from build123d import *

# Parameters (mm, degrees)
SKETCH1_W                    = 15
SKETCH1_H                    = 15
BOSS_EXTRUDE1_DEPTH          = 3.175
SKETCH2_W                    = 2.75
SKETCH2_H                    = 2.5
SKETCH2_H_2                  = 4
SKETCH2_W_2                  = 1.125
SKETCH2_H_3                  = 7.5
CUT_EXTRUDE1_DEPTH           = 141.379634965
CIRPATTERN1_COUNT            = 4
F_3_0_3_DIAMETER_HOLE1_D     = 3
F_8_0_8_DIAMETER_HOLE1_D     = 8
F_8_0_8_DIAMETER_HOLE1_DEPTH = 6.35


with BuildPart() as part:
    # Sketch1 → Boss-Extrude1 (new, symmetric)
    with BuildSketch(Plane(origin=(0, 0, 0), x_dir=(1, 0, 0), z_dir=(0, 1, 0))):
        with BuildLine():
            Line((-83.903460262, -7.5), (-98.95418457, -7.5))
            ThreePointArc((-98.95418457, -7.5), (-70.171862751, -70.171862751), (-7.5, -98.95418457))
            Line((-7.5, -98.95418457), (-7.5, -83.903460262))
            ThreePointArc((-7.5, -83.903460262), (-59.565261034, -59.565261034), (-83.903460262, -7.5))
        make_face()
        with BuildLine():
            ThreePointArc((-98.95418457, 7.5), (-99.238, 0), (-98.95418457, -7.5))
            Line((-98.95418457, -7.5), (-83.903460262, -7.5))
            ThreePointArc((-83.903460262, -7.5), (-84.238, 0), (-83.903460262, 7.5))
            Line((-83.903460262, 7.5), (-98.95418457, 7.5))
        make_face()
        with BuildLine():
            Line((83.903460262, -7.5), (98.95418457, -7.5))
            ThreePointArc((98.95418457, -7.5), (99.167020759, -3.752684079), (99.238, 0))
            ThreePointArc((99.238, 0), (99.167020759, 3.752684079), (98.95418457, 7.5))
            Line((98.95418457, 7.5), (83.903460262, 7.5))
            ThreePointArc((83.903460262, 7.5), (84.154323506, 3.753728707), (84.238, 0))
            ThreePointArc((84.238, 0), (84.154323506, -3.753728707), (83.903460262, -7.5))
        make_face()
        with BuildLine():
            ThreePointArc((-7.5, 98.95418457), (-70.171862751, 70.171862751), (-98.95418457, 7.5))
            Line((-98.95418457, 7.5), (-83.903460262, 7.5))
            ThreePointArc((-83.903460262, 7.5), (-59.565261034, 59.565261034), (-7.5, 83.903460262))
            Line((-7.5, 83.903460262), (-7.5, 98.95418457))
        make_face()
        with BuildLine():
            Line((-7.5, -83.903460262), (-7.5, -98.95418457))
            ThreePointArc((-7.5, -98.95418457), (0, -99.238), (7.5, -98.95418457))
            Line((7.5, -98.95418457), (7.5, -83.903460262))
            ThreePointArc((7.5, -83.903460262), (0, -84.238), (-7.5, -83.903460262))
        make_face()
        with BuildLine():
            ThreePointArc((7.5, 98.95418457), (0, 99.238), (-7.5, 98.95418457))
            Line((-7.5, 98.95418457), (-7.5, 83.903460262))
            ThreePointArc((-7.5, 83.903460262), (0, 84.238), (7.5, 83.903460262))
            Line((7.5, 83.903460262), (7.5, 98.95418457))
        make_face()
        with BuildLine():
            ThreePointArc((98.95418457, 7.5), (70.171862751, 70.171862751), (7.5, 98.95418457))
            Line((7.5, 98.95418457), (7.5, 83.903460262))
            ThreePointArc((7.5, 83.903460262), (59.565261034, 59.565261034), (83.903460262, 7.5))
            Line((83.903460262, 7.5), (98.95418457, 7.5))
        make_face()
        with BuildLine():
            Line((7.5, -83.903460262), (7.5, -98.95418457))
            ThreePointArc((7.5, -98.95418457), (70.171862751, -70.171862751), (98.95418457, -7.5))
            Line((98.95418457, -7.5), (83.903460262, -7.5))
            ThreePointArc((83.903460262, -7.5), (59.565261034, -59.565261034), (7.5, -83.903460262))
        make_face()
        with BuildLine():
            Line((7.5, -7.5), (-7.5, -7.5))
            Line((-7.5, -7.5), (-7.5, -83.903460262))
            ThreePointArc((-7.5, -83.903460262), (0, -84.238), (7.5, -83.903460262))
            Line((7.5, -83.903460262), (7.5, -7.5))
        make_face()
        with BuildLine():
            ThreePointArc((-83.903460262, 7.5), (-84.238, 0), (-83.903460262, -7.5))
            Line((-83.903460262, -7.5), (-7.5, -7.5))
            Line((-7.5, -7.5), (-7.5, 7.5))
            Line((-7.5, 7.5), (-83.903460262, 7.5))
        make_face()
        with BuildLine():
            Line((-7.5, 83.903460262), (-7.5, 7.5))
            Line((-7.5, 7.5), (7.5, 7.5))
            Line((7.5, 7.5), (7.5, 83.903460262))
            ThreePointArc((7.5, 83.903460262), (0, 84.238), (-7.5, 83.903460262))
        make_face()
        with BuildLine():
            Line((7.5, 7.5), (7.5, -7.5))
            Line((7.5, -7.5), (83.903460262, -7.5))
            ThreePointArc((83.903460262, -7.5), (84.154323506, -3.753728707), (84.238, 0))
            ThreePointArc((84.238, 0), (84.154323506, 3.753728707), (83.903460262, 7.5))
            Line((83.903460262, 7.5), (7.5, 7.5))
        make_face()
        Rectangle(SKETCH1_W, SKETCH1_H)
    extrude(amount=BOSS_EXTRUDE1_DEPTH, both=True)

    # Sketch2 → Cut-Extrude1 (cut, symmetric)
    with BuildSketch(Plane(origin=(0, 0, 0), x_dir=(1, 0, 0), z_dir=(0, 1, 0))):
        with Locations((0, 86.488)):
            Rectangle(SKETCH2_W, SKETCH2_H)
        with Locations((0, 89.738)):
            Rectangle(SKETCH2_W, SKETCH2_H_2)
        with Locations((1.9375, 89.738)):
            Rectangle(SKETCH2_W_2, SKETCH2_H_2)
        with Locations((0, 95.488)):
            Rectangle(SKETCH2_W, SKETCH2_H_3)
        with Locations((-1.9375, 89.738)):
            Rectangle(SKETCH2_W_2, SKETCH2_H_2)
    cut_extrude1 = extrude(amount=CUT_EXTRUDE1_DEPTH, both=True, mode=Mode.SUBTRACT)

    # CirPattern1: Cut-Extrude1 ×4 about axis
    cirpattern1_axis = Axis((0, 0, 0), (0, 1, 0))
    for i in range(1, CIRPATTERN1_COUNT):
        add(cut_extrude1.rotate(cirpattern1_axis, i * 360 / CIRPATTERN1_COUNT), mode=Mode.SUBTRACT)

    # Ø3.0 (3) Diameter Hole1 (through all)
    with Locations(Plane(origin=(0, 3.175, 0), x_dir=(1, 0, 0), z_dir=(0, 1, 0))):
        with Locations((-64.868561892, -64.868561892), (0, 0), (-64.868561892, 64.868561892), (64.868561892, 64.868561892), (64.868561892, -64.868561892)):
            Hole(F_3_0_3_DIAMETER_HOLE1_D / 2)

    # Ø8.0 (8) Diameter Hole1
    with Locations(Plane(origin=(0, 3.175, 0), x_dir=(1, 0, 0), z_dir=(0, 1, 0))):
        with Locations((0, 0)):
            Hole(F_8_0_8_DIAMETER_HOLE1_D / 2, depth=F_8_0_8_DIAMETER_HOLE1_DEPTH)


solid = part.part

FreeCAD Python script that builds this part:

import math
import FreeCAD as App
import Part
import Sketcher
from FreeCAD import Vector
Q = App.Units.Quantity

doc = App.newDocument("Part")
params = doc.addObject("Spreadsheet::Sheet", "Params")
for row, (alias, value) in enumerate([
    ("pad1_length", "6.35 mm"),
    ("sketch2_height", "4 mm"),
    ("sketch2_height2", "2.5 mm"),
    ("sketch2_height3", "7.5 mm"),
    ("sketch2_width", "2.75 mm"),
    ("pocket1_length", "282.75927 mm"),
    ("sketch3_diameter", "3 mm"),
    ("hole_diameter", "3 mm"),
    ("sketch4_diameter", "8 mm"),
    ("hole2_diameter", "8 mm"),
    ("hole2_depth", "6.35 mm"),
], start=1):
    params.set(f"A{row}", alias)
    params.set(f"B{row}", "=" + value)
    params.setAlias(f"B{row}", alias)

body = doc.addObject("PartDesign::Body", "Body")

# Sketch on XZ plane
sketch1 = body.newObject("Sketcher::SketchObject", "Sketch")
sketch1.AttachmentSupport = (doc.getObject("XZ_Plane"), [""])
sketch1.MapMode = "FlatFace"
sketch1.addGeometry([
    Part.ArcOfCircle(Part.Circle(Vector(0, 0, 0), Vector(0, 0, 1), 99), math.radians(94), math.radians(176)),  # 0
    Part.ArcOfCircle(Part.Circle(Vector(0, 0, 0), Vector(0, 0, 1), 99), math.radians(85.67), math.radians(94.33)),  # 1
    Part.ArcOfCircle(Part.Circle(Vector(0, 0, 0), Vector(0, 0, 1), 99), math.radians(4), math.radians(86)),  # 2
    Part.ArcOfCircle(Part.Circle(Vector(0, 0, 0), Vector(0, 0, 1), 99), math.radians(0), math.radians(4.33)),  # 3
    Part.ArcOfCircle(Part.Circle(Vector(0, 0, 0), Vector(0, 0, 1), 99), math.radians(-4.33), math.radians(0)),  # 4
    Part.ArcOfCircle(Part.Circle(Vector(0, 0, 0), Vector(0, 0, 1), 99), math.radians(-86), math.radians(-4)),  # 5
    Part.ArcOfCircle(Part.Circle(Vector(0, 0, 0), Vector(0, 0, 1), 99), math.radians(-94.33), math.radians(-85.67)),  # 6
    Part.ArcOfCircle(Part.Circle(Vector(0, 0, 0), Vector(0, 0, 1), 99), math.radians(-176), math.radians(-94)),  # 7
    Part.ArcOfCircle(Part.Circle(Vector(0, 0, 0), Vector(0, 0, 1), 99), math.radians(175.67), math.radians(184.33)),  # 8
    Part.LineSegment(Vector(-84, 8, 0), Vector(-8, 8, 0)),  # 9
    Part.LineSegment(Vector(-8, 8, 0), Vector(-8, 84, 0)),  # 10
    Part.ArcOfCircle(Part.Circle(Vector(0, 0, 0), Vector(0, 0, 1), 84), math.radians(95), math.radians(175)),  # 11
    Part.LineSegment(Vector(8, 84, 0), Vector(8, 8, 0)),  # 12
    Part.LineSegment(Vector(8, 8, 0), Vector(84, 8, 0)),  # 13
    Part.ArcOfCircle(Part.Circle(Vector(0, 0, 0), Vector(0, 0, 1), 84), math.radians(5), math.radians(85)),  # 14
    Part.LineSegment(Vector(-8, -84, 0), Vector(-8, -8, 0)),  # 15
    Part.LineSegment(Vector(-8, -8, 0), Vector(-84, -8, 0)),  # 16
    Part.ArcOfCircle(Part.Circle(Vector(0, 0, 0), Vector(0, 0, 1), 84), math.radians(-175), math.radians(-95)),  # 17
    Part.LineSegment(Vector(84, -8, 0), Vector(8, -8, 0)),  # 18
    Part.LineSegment(Vector(8, -8, 0), Vector(8, -84, 0)),  # 19
    Part.ArcOfCircle(Part.Circle(Vector(0, 0, 0), Vector(0, 0, 1), 84), math.radians(-85), math.radians(-5)),  # 20
], False)
sketch1.addConstraint([
    Sketcher.Constraint("Tangent", 0, 1, 1, 2),
    Sketcher.Constraint("Tangent", 1, 1, 2, 2),
    Sketcher.Constraint("Tangent", 2, 1, 3, 2),
    Sketcher.Constraint("Tangent", 3, 1, 4, 2),
    Sketcher.Constraint("Tangent", 4, 1, 5, 2),
    Sketcher.Constraint("Tangent", 5, 1, 6, 2),
    Sketcher.Constraint("Tangent", 6, 1, 7, 2),
    Sketcher.Constraint("Tangent", 7, 1, 8, 2),
    Sketcher.Constraint("Tangent", 8, 1, 0, 2),
    Sketcher.Constraint("Coincident", 9, 2, 10, 1),
    Sketcher.Constraint("Coincident", 10, 2, 11, 1),
    Sketcher.Constraint("Coincident", 11, 2, 9, 1),
    Sketcher.Constraint("Coincident", 12, 2, 13, 1),
    Sketcher.Constraint("Coincident", 13, 2, 14, 1),
    Sketcher.Constraint("Coincident", 14, 2, 12, 1),
    Sketcher.Constraint("Coincident", 15, 2, 16, 1),
    Sketcher.Constraint("Coincident", 16, 2, 17, 1),
    Sketcher.Constraint("Coincident", 17, 2, 15, 1),
    Sketcher.Constraint("Coincident", 18, 2, 19, 1),
    Sketcher.Constraint("Coincident", 19, 2, 20, 1),
    Sketcher.Constraint("Coincident", 20, 2, 18, 1),
    Sketcher.Constraint("Horizontal", 9),
    Sketcher.Constraint("Vertical", 10),
    Sketcher.Constraint("Vertical", 12),
    Sketcher.Constraint("Horizontal", 13),
    Sketcher.Constraint("Vertical", 15),
    Sketcher.Constraint("Horizontal", 16),
    Sketcher.Constraint("Horizontal", 18),
    Sketcher.Constraint("Vertical", 19),
    Sketcher.Constraint("Coincident", 0, 3, -1, 1),
    Sketcher.Constraint("Coincident", 2, 3, -1, 1),
    Sketcher.Constraint("Coincident", 4, 3, -1, 1),
    Sketcher.Constraint("Coincident", 6, 3, -1, 1),
    Sketcher.Constraint("Coincident", 11, 3, -1, 1),
    Sketcher.Constraint("Coincident", 14, 3, -1, 1),
    Sketcher.Constraint("Coincident", 17, 3, -1, 1),
    Sketcher.Constraint("Coincident", 20, 3, -1, 1),
    Sketcher.Constraint("Equal", 11, 14),
    Sketcher.Constraint("Equal", 14, 17),
    Sketcher.Constraint("Equal", 17, 20),
    Sketcher.Constraint("Symmetric", 12, 2, 15, 2, -1, 1),
    Sketcher.Constraint("Symmetric", 9, 2, 18, 2, -1, 1),
    Sketcher.Constraint("Symmetric", 9, 2, 12, 2, -2),
    Sketcher.Constraint("PointOnObject", 3, 1, -1),
    Sketcher.Constraint("Horizontal", 0, 1, 1, 1),
    Sketcher.Constraint("Horizontal", 5, 1, 6, 1),
    Sketcher.Constraint("Horizontal", 4, 1, 7, 1),
    Sketcher.Constraint("Horizontal", 2, 1, 8, 1),
    Sketcher.Constraint("Horizontal", 8, 1, 9, 2),
    Sketcher.Constraint("Horizontal", 7, 1, 15, 2),
    Sketcher.Constraint("Vertical", 1, 1, 5, 1),
    Sketcher.Constraint("Vertical", 6, 1, 9, 2),
    Sketcher.Constraint("Equal", 18, 10),
    Sketcher.Constraint("Radius", 0, Q("99.238 mm")),
    Sketcher.Constraint("Radius", 11, Q("84.238 mm")),
    Sketcher.Constraint("DistanceX", 0, 1, 1, 1, Q("15 mm")),
])
pad1 = body.newObject("PartDesign::Pad", "Pad")
pad1.Profile = sketch1
pad1.setExpression("Length", "Params.pad1_length")
pad1.Midplane = True

# Sketch on XZ plane
sketch2 = body.newObject("Sketcher::SketchObject", "Sketch001")
sketch2.AttachmentSupport = (doc.getObject("XZ_Plane"), [""])
sketch2.MapMode = "FlatFace"
sketch2.addGeometry([
    Part.LineSegment(Vector(-1.4, -85.2, 0), Vector(1.4, -85.2, 0)),  # 0
    Part.LineSegment(Vector(1.4, -85.2, 0), Vector(1.4, -87.7, 0)),  # 1
    Part.LineSegment(Vector(1.4, -87.7, 0), Vector(2.5, -87.7, 0)),  # 2
    Part.LineSegment(Vector(2.5, -87.7, 0), Vector(2.5, -91.7, 0)),  # 3
    Part.LineSegment(Vector(2.5, -91.7, 0), Vector(1.4, -91.7, 0)),  # 4
    Part.LineSegment(Vector(1.4, -91.7, 0), Vector(1.4, -99.2, 0)),  # 5
    Part.LineSegment(Vector(1.4, -99.2, 0), Vector(-1.4, -99.2, 0)),  # 6
    Part.LineSegment(Vector(-1.4, -99.2, 0), Vector(-1.4, -91.7, 0)),  # 7
    Part.LineSegment(Vector(-1.4, -91.7, 0), Vector(-2.5, -91.7, 0)),  # 8
    Part.LineSegment(Vector(-2.5, -91.7, 0), Vector(-2.5, -87.7, 0)),  # 9
    Part.LineSegment(Vector(-2.5, -87.7, 0), Vector(-1.4, -87.7, 0)),  # 10
    Part.LineSegment(Vector(-1.4, -87.7, 0), Vector(-1.4, -85.2, 0)),  # 11
], False)
sketch2.addConstraint([
    Sketcher.Constraint("Coincident", 0, 2, 1, 1),
    Sketcher.Constraint("Coincident", 1, 2, 2, 1),
    Sketcher.Constraint("Coincident", 2, 2, 3, 1),
    Sketcher.Constraint("Coincident", 3, 2, 4, 1),
    Sketcher.Constraint("Coincident", 4, 2, 5, 1),
    Sketcher.Constraint("Coincident", 5, 2, 6, 1),
    Sketcher.Constraint("Coincident", 6, 2, 7, 1),
    Sketcher.Constraint("Coincident", 7, 2, 8, 1),
    Sketcher.Constraint("Coincident", 8, 2, 9, 1),
    Sketcher.Constraint("Coincident", 9, 2, 10, 1),
    Sketcher.Constraint("Coincident", 10, 2, 11, 1),
    Sketcher.Constraint("Coincident", 11, 2, 0, 1),
    Sketcher.Constraint("Horizontal", 0),
    Sketcher.Constraint("Vertical", 1),
    Sketcher.Constraint("Horizontal", 2),
    Sketcher.Constraint("Vertical", 3),
    Sketcher.Constraint("Horizontal", 4),
    Sketcher.Constraint("Vertical", 5),
    Sketcher.Constraint("Horizontal", 6),
    Sketcher.Constraint("Vertical", 7),
    Sketcher.Constraint("Horizontal", 8),
    Sketcher.Constraint("Vertical", 9),
    Sketcher.Constraint("Horizontal", 10),
    Sketcher.Constraint("Vertical", 11),
    Sketcher.Constraint("Symmetric", 4, 2, 7, 2, -2),
    Sketcher.Constraint("Symmetric", 2, 2, 9, 2, -2),
    Sketcher.Constraint("Vertical", 1, 2, 4, 2),
    Sketcher.Constraint("Vertical", 7, 2, 10, 2),
    Sketcher.Constraint("DistanceY", 3, 2, 3, 1, Q("4 mm")),
    Sketcher.Constraint("DistanceY", 1, 2, 1, 1, Q("2.5 mm")),
    Sketcher.Constraint("DistanceY", 5, 2, 5, 1, Q("7.5 mm")),
    Sketcher.Constraint("DistanceX", 8, 2, 3, 2, Q("5 mm")),
    Sketcher.Constraint("DistanceX", 0, 1, 0, 2, Q("2.75 mm")),
    Sketcher.Constraint("DistanceY", 0, 2, -1, 1, Q("85.238 mm")),
])
sketch2.setExpression("Constraints[28]", "Params.sketch2_height")
sketch2.setExpression("Constraints[29]", "Params.sketch2_height2")
sketch2.setExpression("Constraints[30]", "Params.sketch2_height3")
sketch2.setExpression("Constraints[32]", "Params.sketch2_width")
pocket1 = body.newObject("PartDesign::Pocket", "Pocket")
pocket1.Profile = sketch2
pocket1.setExpression("Length", "Params.pocket1_length")
pocket1.Midplane = True
doc.recompute()

polarpattern = body.newObject("PartDesign::PolarPattern", "PolarPattern")
polarpattern.Originals = [pocket1]
polarpattern.Axis = (doc.getObject("Y_Axis"), [""])
polarpattern.Angle = 360
polarpattern.Occurrences = 4
body.Tip = polarpattern

# Sketch on XZ plane
sketch3 = body.newObject("Sketcher::SketchObject", "Sketch002")
sketch3.AttachmentSupport = (doc.getObject("XZ_Plane"), [""])
sketch3.MapMode = "FlatFace"
sketch3.AttachmentOffset = App.Placement(Vector(0, 0, -3.175), App.Rotation())
sketch3.addGeometry([
    Part.Circle(Vector(-64.9, 64.9, 0), Vector(0, 0, 1), 1.5),  # 0
    Part.Circle(Vector(0, 0, 0), Vector(0, 0, 1), 1.5),  # 1
    Part.Circle(Vector(-64.9, -64.9, 0), Vector(0, 0, 1), 1.5),  # 2
    Part.Circle(Vector(64.9, -64.9, 0), Vector(0, 0, 1), 1.5),  # 3
    Part.Circle(Vector(64.9, 64.9, 0), Vector(0, 0, 1), 1.5),  # 4
], False)
sketch3.addConstraint([
    Sketcher.Constraint("Coincident", 1, 3, -1, 1),
    Sketcher.Constraint("Equal", 0, 1),
    Sketcher.Constraint("Equal", 1, 2),
    Sketcher.Constraint("Equal", 2, 3),
    Sketcher.Constraint("Equal", 3, 4),
    Sketcher.Constraint("Symmetric", 0, 3, 3, 3, -1, 1),
    Sketcher.Constraint("Symmetric", 2, 3, 4, 3, -1, 1),
    Sketcher.Constraint("Symmetric", 2, 3, 3, 3, -2),
    Sketcher.Constraint("Diameter", 0, Q("3 mm")),
    Sketcher.Constraint("DistanceX", 0, 3, -1, 1, Q("64.868562 mm")),
    Sketcher.Constraint("DistanceY", -1, 1, 0, 3, Q("64.868562 mm")),
])
sketch3.setExpression("Constraints[8]", "Params.sketch3_diameter")
doc.recompute()
hole = body.newObject("PartDesign::Hole", "Hole")
hole.Profile = sketch3
hole.ThreadType = "None"
hole.setExpression("Diameter", "Params.hole_diameter")
hole.DepthType = "ThroughAll"
hole.Reversed = True

# Sketch on XZ plane
sketch4 = body.newObject("Sketcher::SketchObject", "Sketch003")
sketch4.AttachmentSupport = (doc.getObject("XZ_Plane"), [""])
sketch4.MapMode = "FlatFace"
sketch4.AttachmentOffset = App.Placement(Vector(0, 0, -3.175), App.Rotation())
sketch4.addGeometry(Part.Circle(Vector(0, 0, 0), Vector(0, 0, 1), 4), False)
sketch4.addConstraint([
    Sketcher.Constraint("Coincident", 0, 3, -1, 1),
    Sketcher.Constraint("Diameter", 0, Q("8 mm")),
])
sketch4.setExpression("Constraints[1]", "Params.sketch4_diameter")
doc.recompute()
hole2 = body.newObject("PartDesign::Hole", "Hole001")
hole2.Profile = sketch4
hole2.ThreadType = "None"
hole2.setExpression("Diameter", "Params.hole2_diameter")
hole2.DepthType = "Dimension"
hole2.setExpression("Depth", "Params.hole2_depth")
hole2.DrillPoint = "Flat"
hole2.Reversed = True

doc.recompute()
